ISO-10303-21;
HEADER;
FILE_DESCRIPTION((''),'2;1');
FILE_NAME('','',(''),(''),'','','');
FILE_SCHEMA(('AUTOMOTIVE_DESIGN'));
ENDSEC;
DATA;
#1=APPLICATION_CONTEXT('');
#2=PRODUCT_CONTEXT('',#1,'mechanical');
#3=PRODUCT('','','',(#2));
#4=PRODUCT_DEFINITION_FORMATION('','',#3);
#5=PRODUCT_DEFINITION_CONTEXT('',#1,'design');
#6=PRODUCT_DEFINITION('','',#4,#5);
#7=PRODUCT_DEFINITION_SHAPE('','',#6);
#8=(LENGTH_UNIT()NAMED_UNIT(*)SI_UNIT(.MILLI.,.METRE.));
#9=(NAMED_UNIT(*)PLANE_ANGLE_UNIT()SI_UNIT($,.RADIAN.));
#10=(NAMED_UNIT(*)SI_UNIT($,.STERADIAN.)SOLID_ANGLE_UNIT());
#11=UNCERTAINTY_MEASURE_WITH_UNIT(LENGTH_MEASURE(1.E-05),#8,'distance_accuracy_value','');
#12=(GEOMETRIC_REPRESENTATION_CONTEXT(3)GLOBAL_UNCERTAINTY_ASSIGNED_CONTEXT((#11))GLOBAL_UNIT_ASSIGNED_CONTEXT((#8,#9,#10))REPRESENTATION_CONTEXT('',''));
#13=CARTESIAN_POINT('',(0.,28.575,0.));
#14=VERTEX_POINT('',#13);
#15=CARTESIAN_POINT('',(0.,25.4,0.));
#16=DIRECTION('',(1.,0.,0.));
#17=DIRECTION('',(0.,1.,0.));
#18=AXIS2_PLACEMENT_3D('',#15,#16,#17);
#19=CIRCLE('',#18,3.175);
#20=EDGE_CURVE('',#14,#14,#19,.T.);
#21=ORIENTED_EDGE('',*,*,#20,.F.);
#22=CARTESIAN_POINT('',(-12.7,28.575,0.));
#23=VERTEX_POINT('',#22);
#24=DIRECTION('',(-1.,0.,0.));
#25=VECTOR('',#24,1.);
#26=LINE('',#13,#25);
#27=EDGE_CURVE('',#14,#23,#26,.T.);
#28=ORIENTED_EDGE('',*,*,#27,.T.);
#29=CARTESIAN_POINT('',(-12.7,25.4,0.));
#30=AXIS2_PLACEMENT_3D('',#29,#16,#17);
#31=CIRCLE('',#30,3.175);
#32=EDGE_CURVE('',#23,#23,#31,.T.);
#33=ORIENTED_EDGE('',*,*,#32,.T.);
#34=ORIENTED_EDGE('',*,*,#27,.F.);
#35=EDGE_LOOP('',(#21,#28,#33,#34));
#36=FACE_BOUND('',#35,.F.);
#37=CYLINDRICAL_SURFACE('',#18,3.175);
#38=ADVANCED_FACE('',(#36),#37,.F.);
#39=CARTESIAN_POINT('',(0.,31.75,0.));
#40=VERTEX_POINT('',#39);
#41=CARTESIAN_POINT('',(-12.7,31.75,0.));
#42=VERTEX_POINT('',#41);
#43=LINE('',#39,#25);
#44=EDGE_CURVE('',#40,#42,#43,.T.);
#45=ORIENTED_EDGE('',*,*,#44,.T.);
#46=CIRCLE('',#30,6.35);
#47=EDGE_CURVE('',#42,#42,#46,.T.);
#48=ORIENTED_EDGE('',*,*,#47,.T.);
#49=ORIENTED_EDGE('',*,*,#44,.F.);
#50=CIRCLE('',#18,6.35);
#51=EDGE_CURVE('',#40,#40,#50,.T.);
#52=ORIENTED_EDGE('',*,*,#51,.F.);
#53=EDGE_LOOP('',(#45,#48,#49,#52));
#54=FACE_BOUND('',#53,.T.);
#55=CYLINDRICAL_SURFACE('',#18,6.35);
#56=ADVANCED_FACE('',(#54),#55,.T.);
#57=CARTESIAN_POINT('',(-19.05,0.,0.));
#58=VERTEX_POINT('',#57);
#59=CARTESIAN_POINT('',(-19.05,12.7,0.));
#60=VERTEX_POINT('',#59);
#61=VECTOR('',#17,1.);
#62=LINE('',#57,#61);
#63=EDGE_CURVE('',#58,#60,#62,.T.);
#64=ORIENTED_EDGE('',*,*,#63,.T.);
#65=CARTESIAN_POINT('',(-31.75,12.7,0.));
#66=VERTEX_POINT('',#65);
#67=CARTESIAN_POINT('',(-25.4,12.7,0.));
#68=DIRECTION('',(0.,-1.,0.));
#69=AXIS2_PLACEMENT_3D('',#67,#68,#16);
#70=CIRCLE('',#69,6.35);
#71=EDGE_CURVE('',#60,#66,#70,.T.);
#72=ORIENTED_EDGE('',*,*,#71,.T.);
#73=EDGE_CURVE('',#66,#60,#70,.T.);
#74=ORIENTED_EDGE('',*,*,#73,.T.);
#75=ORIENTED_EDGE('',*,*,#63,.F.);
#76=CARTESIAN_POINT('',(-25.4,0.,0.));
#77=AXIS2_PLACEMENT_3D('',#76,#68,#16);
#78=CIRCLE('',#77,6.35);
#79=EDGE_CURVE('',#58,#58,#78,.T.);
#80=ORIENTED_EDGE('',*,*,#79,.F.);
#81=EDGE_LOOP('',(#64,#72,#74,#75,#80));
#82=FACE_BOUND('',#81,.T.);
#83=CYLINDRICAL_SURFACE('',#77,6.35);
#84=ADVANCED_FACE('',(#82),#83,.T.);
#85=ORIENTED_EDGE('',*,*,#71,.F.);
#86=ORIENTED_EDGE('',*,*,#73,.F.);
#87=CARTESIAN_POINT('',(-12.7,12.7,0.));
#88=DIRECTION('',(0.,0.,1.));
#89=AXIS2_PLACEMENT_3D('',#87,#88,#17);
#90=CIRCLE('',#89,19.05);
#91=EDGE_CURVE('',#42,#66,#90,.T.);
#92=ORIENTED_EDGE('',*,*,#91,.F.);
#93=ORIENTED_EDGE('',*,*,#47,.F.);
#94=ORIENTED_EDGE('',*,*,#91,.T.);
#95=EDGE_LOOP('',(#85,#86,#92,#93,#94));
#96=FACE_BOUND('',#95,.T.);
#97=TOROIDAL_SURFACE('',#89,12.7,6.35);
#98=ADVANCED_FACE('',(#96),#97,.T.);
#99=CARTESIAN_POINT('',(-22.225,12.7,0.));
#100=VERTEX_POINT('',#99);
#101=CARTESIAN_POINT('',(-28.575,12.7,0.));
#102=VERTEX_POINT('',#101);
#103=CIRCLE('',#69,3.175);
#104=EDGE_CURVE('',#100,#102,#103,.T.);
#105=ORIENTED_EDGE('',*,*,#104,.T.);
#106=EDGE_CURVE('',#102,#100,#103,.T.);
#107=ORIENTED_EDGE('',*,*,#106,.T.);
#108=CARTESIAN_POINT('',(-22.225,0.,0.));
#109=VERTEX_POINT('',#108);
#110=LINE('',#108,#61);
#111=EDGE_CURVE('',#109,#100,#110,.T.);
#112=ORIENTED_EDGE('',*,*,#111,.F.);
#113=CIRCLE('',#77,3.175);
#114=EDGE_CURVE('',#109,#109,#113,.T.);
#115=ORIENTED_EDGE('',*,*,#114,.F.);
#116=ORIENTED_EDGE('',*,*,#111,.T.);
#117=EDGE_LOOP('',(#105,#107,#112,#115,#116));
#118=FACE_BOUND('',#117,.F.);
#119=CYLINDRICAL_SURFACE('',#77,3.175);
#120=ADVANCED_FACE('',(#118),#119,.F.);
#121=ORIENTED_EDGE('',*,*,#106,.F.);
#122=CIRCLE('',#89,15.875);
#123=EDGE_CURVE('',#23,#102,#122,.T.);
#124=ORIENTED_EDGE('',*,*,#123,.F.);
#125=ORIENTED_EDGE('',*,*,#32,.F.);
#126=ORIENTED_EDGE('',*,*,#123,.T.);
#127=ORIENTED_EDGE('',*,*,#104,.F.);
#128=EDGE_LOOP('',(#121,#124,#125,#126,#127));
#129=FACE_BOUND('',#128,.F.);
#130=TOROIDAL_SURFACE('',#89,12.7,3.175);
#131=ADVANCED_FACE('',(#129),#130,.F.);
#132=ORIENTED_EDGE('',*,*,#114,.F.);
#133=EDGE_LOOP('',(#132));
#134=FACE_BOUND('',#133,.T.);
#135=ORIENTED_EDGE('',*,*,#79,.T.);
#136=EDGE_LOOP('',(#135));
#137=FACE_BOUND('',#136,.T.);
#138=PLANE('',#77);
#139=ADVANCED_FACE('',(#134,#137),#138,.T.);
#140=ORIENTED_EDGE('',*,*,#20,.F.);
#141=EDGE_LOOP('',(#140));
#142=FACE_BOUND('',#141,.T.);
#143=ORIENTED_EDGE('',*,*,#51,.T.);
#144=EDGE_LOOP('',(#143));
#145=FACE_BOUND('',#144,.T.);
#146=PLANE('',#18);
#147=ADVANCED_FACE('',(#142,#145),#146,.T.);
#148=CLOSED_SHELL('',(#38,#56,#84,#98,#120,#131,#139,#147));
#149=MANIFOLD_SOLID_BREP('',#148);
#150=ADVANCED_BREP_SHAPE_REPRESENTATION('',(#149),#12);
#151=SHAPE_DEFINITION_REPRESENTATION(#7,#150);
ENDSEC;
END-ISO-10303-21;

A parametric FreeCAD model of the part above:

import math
import FreeCAD as App
import Part
import Sketcher
from FreeCAD import Vector
Q = App.Units.Quantity

doc = App.newDocument("Part")
body = doc.addObject("PartDesign::Body", "Body")

# Sketch on YZ plane
sketch1 = doc.addObject("Sketcher::SketchObject", "Sketch")
body.addObject(sketch1)
sketch1.AttachmentSupport = (doc.YZ_Plane, [""])
sketch1.MapMode = "FlatFace"
sketch1.addGeometry(Part.Circle(Vector(25.4, 0, 0), Vector(0, 0, 1), 6.35), False)
sketch1.addGeometry(Part.Circle(Vector(25.4, 0, 0), Vector(0, 0, 1), 3.175), False)
sketch1.addConstraint(Sketcher.Constraint("Coincident", 1, 3, 0, 3))
sketch1.addConstraint(Sketcher.Constraint("PointOnObject", 0, 3, -1))
sketch1.addConstraint(Sketcher.Constraint("Diameter", 0, Q("0.5 in")))
sketch1.addConstraint(Sketcher.Constraint("Diameter", 1, Q("0.25 in")))
sketch1.addConstraint(Sketcher.Constraint("DistanceX", -1, 1, 0, 3, Q("1 in")))
pad1 = doc.addObject("PartDesign::Pad", "Pad")
body.addObject(pad1)
pad1.Profile = sketch1
pad1.Length = Q("0.5 in")
pad1.Reversed = True
body2 = doc.addObject("PartDesign::Body", "Body001")

# Sketch on XZ plane
sketch2 = doc.addObject("Sketcher::SketchObject", "Sketch001")
body2.addObject(sketch2)
sketch2.AttachmentSupport = (doc.getObject("XZ_Plane001"), [""])
sketch2.MapMode = "FlatFace"
sketch2.addGeometry(Part.Circle(Vector(-25.4, 0, 0), Vector(0, 0, 1), 6.35), False)
sketch2.addGeometry(Part.Circle(Vector(-25.4, 0, 0), Vector(0, 0, 1), 3.175), False)
sketch2.addConstraint(Sketcher.Constraint("Coincident", 1, 3, 0, 3))
sketch2.addConstraint(Sketcher.Constraint("PointOnObject", 0, 3, -1))
sketch2.addConstraint(Sketcher.Constraint("Diameter", 0, Q("0.5 in")))
sketch2.addConstraint(Sketcher.Constraint("Diameter", 1, Q("0.25 in")))
sketch2.addConstraint(Sketcher.Constraint("DistanceX", 0, 3, -1, 1, Q("1 in")))
pad2 = doc.addObject("PartDesign::Pad", "Pad001")
body2.addObject(pad2)
pad2.Profile = sketch2
pad2.Length = Q("0.5 in")
pad2.Reversed = True
body.AllowCompound = True
doc.recompute()

boolean = doc.addObject("PartDesign::Boolean", "Boolean")
body.addObject(boolean)
boolean.Type = "Fuse"
boolean.addObjects([body2])

# Sketch on YZ plane
sketch3 = doc.addObject("Sketcher::SketchObject", "Sketch002")
body.addObject(sketch3)
sketch3.AttachmentSupport = (doc.YZ_Plane, [""])
sketch3.MapMode = "FlatFace"
sketch3.AttachmentOffset = App.Placement(Vector(0, 0, -0.5 * 25.4), App.Rotation())
sketch3.addGeometry(Part.Circle(Vector(25.4, 0, 0), Vector(0, 0, 1), 6.35), False)
sketch3.addGeometry(Part.Circle(Vector(25.4, 0, 0), Vector(0, 0, 1), 3.175), False)
sketch3.addConstraint(Sketcher.Constraint("Coincident", 1, 3, 0, 3))
sketch3.addConstraint(Sketcher.Constraint("PointOnObject", 0, 3, -1))
sketch3.addConstraint(Sketcher.Constraint("Diameter", 0, Q("0.5 in")))
sketch3.addConstraint(Sketcher.Constraint("Diameter", 1, Q("0.25 in")))
sketch3.addConstraint(Sketcher.Constraint("DistanceX", -1, 1, 0, 3, Q("1 in")))

# Sketch on XY plane
sketch4 = doc.addObject("Sketcher::SketchObject", "Sketch003")
body.addObject(sketch4)
sketch4.AttachmentSupport = (doc.XY_Plane, [""])
sketch4.MapMode = "FlatFace"
sketch4.addGeometry(Part.ArcOfCircle(Part.Circle(Vector(-12.7, 12.7, 0), Vector(0, 0, 1), 25.4), math.radians(90), math.radians(180)), False)
sketch4.addConstraint(Sketcher.Constraint("Radius", 0, Q("1 in")))
sketch4.addConstraint(Sketcher.Constraint("DistanceX", 0, 2, 0, 1, Q("1 in")))
sketch4.addConstraint(Sketcher.Constraint("DistanceY", 0, 2, 0, 1, Q("1 in")))
sketch4.addConstraint(Sketcher.Constraint("DistanceX", 0, 3, -1, 1, Q("0.5 in")))
sketch4.addConstraint(Sketcher.Constraint("DistanceY", -1, 1, 0, 3, Q("0.5 in")))
doc.recompute()

additivepipe = doc.addObject("PartDesign::AdditivePipe", "AdditivePipe")
body.addObject(additivepipe)
additivepipe.Profile = sketch3
additivepipe.Spine = (sketch4, ["Edge1"])

doc.recompute()
